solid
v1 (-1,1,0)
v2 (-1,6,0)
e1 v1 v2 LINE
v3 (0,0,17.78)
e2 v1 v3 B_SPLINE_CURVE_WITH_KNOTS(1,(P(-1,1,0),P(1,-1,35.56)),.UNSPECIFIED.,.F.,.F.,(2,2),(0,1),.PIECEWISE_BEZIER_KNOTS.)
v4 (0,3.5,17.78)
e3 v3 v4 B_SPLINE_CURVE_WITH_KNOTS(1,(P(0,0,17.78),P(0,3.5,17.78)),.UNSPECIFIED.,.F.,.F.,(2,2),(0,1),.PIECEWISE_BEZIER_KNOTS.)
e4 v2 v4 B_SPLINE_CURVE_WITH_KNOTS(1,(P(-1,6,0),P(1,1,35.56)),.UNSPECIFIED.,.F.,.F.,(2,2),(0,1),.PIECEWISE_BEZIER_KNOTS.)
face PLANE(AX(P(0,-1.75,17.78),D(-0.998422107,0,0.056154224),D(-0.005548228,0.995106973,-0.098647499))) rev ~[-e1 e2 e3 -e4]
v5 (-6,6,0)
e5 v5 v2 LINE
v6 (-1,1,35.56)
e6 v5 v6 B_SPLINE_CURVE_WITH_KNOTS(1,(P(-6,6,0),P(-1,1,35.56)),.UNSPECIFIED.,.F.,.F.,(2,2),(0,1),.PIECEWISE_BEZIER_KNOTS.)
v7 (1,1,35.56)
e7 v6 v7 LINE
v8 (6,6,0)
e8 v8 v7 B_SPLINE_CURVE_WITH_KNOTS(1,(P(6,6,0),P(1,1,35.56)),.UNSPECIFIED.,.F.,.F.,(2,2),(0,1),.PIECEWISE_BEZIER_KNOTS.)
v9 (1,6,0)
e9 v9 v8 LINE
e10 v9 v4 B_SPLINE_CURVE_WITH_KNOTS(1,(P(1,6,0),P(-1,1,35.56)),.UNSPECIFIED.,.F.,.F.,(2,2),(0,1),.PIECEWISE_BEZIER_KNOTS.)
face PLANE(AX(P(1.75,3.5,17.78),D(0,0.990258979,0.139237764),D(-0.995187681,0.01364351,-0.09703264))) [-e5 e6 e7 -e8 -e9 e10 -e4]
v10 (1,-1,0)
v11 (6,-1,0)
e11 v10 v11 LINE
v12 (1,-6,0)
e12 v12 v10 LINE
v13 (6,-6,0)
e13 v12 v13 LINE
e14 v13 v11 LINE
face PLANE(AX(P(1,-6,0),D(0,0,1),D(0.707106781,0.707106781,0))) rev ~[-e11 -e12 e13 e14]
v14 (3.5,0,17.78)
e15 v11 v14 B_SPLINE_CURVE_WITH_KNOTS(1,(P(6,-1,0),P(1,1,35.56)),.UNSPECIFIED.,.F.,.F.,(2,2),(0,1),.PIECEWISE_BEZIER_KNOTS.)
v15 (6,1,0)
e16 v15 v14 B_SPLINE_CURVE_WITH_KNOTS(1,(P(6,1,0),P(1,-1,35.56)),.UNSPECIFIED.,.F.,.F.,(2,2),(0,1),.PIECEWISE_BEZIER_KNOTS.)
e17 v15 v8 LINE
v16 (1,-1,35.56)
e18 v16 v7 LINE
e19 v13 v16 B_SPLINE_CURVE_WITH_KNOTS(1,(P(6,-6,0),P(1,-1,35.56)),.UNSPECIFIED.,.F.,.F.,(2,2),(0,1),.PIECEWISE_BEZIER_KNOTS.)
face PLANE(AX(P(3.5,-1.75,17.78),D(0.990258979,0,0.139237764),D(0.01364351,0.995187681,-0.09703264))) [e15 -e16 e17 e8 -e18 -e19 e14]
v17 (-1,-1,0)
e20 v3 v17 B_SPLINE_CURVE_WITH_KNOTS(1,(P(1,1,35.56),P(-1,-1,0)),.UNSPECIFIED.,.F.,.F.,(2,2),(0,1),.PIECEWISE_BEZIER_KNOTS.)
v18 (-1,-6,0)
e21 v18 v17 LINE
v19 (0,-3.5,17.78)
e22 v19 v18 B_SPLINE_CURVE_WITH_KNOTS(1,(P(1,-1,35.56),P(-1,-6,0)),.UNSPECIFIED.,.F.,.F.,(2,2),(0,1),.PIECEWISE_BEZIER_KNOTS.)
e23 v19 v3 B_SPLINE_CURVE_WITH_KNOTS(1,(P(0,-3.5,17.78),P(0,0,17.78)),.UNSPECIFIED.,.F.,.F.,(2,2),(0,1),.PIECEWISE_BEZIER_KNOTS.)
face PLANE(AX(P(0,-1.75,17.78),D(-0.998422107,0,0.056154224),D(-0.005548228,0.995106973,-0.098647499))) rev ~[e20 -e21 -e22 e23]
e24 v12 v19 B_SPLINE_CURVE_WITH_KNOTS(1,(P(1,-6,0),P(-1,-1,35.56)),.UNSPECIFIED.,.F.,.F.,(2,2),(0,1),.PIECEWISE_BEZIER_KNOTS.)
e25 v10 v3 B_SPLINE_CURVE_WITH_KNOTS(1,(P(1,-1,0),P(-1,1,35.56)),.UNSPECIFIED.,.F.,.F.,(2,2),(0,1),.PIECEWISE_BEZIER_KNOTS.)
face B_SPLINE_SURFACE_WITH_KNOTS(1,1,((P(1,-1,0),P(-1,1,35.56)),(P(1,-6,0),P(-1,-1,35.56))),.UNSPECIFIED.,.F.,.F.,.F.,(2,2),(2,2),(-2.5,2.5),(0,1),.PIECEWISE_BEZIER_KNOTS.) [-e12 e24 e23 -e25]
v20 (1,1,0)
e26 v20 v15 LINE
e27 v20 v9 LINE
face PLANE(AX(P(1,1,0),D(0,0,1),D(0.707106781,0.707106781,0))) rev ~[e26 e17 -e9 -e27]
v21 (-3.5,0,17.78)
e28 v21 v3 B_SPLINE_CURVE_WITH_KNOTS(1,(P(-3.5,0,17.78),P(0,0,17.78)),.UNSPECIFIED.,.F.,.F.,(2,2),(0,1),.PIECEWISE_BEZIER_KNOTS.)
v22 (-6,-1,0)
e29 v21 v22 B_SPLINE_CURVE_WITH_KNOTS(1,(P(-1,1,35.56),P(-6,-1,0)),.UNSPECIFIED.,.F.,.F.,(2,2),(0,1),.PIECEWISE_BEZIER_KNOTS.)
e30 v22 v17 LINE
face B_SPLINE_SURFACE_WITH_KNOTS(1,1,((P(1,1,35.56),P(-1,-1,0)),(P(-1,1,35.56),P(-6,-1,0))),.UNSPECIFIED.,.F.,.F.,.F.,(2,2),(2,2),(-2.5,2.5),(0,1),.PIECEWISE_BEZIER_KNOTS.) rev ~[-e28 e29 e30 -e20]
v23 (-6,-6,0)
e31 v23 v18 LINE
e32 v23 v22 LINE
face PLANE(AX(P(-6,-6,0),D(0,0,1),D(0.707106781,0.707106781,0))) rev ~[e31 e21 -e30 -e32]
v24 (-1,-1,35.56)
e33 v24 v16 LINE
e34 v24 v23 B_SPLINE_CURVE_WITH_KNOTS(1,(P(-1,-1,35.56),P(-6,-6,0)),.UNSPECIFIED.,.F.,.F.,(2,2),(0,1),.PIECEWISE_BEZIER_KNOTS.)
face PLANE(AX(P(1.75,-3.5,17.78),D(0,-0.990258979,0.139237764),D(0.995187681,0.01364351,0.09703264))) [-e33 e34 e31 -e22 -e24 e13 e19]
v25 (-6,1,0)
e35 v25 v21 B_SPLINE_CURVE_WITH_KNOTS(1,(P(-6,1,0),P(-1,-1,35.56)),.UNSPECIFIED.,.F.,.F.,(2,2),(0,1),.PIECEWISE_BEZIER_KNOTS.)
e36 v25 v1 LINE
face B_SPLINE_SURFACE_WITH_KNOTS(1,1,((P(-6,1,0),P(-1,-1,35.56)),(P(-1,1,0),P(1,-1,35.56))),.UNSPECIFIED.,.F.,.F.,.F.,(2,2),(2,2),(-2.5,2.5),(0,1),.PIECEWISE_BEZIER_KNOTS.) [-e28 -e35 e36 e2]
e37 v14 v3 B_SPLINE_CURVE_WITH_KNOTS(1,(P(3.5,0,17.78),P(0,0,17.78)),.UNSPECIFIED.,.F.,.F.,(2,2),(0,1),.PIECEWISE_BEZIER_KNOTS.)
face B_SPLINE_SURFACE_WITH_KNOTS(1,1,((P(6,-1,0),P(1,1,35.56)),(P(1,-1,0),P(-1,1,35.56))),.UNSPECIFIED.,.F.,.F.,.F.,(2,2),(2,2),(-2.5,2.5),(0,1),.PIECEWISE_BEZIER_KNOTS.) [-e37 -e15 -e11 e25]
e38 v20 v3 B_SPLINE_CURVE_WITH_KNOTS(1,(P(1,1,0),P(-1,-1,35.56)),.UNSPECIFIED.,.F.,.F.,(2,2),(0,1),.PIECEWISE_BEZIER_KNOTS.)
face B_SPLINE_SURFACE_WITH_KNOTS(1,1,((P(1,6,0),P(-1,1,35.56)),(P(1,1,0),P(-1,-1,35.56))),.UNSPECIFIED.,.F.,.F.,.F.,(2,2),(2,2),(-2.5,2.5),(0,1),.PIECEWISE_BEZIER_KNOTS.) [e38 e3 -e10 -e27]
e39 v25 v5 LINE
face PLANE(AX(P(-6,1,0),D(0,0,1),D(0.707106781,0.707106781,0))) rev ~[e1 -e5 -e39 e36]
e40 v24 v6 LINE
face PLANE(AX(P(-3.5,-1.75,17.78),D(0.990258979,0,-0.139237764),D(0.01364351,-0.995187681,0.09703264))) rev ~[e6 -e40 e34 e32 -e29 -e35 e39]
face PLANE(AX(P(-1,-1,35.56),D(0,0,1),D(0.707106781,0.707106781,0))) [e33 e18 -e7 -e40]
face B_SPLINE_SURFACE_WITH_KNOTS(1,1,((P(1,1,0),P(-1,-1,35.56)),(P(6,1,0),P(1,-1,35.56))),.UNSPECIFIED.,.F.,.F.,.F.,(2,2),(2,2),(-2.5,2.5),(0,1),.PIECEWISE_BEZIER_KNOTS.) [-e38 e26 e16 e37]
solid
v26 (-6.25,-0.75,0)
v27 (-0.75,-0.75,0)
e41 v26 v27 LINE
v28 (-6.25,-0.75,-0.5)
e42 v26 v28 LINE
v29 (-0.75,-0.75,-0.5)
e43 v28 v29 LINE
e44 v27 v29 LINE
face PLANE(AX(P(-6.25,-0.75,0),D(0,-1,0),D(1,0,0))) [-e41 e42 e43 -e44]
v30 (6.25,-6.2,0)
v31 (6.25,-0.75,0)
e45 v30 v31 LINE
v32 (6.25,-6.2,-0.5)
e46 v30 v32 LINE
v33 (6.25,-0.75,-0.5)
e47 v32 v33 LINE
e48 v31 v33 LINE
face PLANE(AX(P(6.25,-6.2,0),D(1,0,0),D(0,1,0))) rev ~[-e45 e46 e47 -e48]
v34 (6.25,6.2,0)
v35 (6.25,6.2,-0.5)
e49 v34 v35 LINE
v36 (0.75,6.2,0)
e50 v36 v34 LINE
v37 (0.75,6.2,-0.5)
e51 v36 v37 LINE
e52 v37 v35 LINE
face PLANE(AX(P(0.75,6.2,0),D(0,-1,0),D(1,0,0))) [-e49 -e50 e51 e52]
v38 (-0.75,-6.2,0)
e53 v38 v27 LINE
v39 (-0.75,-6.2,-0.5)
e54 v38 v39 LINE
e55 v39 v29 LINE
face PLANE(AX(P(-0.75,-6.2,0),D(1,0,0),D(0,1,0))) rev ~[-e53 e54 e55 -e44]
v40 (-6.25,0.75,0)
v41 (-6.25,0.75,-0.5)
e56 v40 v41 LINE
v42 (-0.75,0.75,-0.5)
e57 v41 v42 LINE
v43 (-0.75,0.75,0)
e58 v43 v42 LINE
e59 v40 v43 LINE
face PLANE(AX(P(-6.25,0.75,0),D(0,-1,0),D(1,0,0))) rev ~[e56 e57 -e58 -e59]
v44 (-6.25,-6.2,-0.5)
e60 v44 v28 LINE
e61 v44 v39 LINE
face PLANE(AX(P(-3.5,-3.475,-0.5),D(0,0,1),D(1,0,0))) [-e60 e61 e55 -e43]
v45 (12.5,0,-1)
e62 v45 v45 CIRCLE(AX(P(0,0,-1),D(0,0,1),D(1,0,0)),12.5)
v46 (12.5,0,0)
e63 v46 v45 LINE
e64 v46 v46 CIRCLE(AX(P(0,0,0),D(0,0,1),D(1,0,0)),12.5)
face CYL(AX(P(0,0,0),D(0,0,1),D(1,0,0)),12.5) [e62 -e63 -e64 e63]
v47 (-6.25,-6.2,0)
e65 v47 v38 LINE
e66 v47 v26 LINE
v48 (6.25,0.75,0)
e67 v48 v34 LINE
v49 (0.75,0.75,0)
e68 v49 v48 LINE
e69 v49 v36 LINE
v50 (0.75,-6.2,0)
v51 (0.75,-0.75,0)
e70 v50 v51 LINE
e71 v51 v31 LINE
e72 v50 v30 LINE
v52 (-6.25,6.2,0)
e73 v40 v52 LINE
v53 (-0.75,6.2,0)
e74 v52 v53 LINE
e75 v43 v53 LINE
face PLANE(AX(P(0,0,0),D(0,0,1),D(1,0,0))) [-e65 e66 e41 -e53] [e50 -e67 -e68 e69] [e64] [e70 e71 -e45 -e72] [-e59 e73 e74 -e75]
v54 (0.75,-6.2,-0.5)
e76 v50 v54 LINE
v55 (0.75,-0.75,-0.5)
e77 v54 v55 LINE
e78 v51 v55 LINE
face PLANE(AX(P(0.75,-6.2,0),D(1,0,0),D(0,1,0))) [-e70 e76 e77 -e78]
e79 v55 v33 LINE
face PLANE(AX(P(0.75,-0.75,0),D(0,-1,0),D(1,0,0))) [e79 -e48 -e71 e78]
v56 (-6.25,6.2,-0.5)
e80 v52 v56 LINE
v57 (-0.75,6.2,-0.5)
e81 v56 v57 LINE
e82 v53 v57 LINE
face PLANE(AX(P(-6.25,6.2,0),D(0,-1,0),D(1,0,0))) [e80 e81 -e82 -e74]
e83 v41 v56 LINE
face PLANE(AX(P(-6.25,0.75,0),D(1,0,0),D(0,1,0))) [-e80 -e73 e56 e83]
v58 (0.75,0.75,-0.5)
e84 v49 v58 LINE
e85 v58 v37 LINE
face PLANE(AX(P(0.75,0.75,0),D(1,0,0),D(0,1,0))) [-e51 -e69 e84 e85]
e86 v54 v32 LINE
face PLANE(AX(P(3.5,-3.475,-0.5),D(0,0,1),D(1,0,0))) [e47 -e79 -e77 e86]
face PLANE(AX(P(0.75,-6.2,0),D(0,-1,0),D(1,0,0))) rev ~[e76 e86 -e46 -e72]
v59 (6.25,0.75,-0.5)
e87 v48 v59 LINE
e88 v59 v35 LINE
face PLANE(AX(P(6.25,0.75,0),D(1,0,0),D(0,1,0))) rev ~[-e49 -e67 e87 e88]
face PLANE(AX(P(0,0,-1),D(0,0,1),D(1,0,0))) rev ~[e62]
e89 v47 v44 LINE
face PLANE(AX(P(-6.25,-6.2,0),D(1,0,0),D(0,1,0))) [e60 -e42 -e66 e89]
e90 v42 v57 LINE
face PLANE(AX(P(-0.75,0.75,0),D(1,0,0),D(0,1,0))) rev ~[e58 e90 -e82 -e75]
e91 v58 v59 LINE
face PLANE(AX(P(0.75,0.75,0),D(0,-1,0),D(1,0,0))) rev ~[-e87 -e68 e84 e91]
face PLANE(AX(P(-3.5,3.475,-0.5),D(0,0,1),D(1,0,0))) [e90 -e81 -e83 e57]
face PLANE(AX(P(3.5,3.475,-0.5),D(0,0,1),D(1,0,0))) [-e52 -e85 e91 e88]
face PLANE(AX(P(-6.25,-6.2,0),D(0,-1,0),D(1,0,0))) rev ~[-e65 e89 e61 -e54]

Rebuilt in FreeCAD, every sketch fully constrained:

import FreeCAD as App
import Part
import Sketcher
from FreeCAD import Vector

doc = App.newDocument("Part")
body = doc.addObject("PartDesign::Body", "Body")

# Sketch on XY plane
sketch1 = doc.addObject("Sketcher::SketchObject", "Sketch")
body.addObject(sketch1)
sketch1.AttachmentSupport = (doc.XY_Plane, [""])
sketch1.MapMode = "FlatFace"
sketch1.addGeometry([
    Part.LineSegment(Vector(-6, 6, 0), Vector(-6, 1, 0)),
    Part.LineSegment(Vector(-6, 1, 0), Vector(-1, 1, 0)),
    Part.LineSegment(Vector(-1, 1, 0), Vector(-1, 6, 0)),
    Part.LineSegment(Vector(-1, 6, 0), Vector(-6, 6, 0)),
], False)
sketch1.addConstraint([
    Sketcher.Constraint("Coincident", 0, 2, 1, 1),
    Sketcher.Constraint("Coincident", 1, 2, 2, 1),
    Sketcher.Constraint("Coincident", 2, 2, 3, 1),
    Sketcher.Constraint("Coincident", 3, 2, 0, 1),
    Sketcher.Constraint("Vertical", 0),
    Sketcher.Constraint("Horizontal", 1),
    Sketcher.Constraint("Vertical", 2),
    Sketcher.Constraint("Horizontal", 3),
    Sketcher.Constraint("Equal", 3, 0),
    Sketcher.Constraint("DistanceX", 1, 1, 1, 2, 5.0),
    Sketcher.Constraint("DistanceX", 0, 2, -1, 1, 6.0),
    Sketcher.Constraint("DistanceY", -1, 1, 0, 2, 1.0),
])

# Sketch on XY plane
sketch2 = doc.addObject("Sketcher::SketchObject", "Sketch001")
body.addObject(sketch2)
sketch2.AttachmentSupport = (doc.XY_Plane, [""])
sketch2.MapMode = "FlatFace"
sketch2.AttachmentOffset = App.Placement(Vector(0, 0, 35.56), App.Rotation())
sketch2.addGeometry([
    Part.LineSegment(Vector(-1, 1, 0), Vector(-1, -1, 0)),
    Part.LineSegment(Vector(-1, -1, 0), Vector(1, -1, 0)),
    Part.LineSegment(Vector(1, -1, 0), Vector(1, 1, 0)),
    Part.LineSegment(Vector(1, 1, 0), Vector(-1, 1, 0)),
], False)
sketch2.addConstraint([
    Sketcher.Constraint("Coincident", 0, 2, 1, 1),
    Sketcher.Constraint("Coincident", 1, 2, 2, 1),
    Sketcher.Constraint("Coincident", 2, 2, 3, 1),
    Sketcher.Constraint("Coincident", 3, 2, 0, 1),
    Sketcher.Constraint("Vertical", 0),
    Sketcher.Constraint("Horizontal", 1),
    Sketcher.Constraint("Vertical", 2),
    Sketcher.Constraint("Horizontal", 3),
    Sketcher.Constraint("Symmetric", 0, 2, 2, 2, -1, 1),
    Sketcher.Constraint("Equal", 3, 0),
    Sketcher.Constraint("DistanceX", 1, 1, 1, 2, 2.0),
])

additiveloft = doc.addObject("PartDesign::AdditiveLoft", "AdditiveLoft")
body.addObject(additiveloft)
additiveloft.Profile = sketch1
additiveloft.Sections = [sketch2]

# Sketch on XY plane
sketch3 = doc.addObject("Sketcher::SketchObject", "Sketch002")
body.addObject(sketch3)
sketch3.AttachmentSupport = (doc.XY_Plane, [""])
sketch3.MapMode = "FlatFace"
sketch3.AttachmentOffset = App.Placement(Vector(0, 0, 35.56), App.Rotation())
sketch3.addGeometry([
    Part.LineSegment(Vector(-1, 1, 0), Vector(-1, -1, 0)),
    Part.LineSegment(Vector(-1, -1, 0), Vector(1, -1, 0)),
    Part.LineSegment(Vector(1, -1, 0), Vector(1, 1, 0)),
    Part.LineSegment(Vector(1, 1, 0), Vector(-1, 1, 0)),
], False)
sketch3.addConstraint([
    Sketcher.Constraint("Coincident", 0, 2, 1, 1),
    Sketcher.Constraint("Coincident", 1, 2, 2, 1),
    Sketcher.Constraint("Coincident", 2, 2, 3, 1),
    Sketcher.Constraint("Coincident", 3, 2, 0, 1),
    Sketcher.Constraint("Vertical", 0),
    Sketcher.Constraint("Horizontal", 1),
    Sketcher.Constraint("Vertical", 2),
    Sketcher.Constraint("Horizontal", 3),
    Sketcher.Constraint("Symmetric", 0, 2, 2, 2, -1, 1),
    Sketcher.Constraint("Equal", 3, 0),
    Sketcher.Constraint("DistanceX", 1, 1, 1, 2, 2.0),
])

# Sketch on XY plane
sketch4 = doc.addObject("Sketcher::SketchObject", "Sketch003")
body.addObject(sketch4)
sketch4.AttachmentSupport = (doc.XY_Plane, [""])
sketch4.MapMode = "FlatFace"
sketch4.addGeometry([
    Part.LineSegment(Vector(-6, -1, 0), Vector(-6, -6, 0)),
    Part.LineSegment(Vector(-6, -6, 0), Vector(-1, -6, 0)),
    Part.LineSegment(Vector(-1, -6, 0), Vector(-1, -1, 0)),
    Part.LineSegment(Vector(-1, -1, 0), Vector(-6, -1, 0)),
], False)
sketch4.addConstraint([
    Sketcher.Constraint("Coincident", 0, 2, 1, 1),
    Sketcher.Constraint("Coincident", 1, 2, 2, 1),
    Sketcher.Constraint("Coincident", 2, 2, 3, 1),
    Sketcher.Constraint("Coincident", 3, 2, 0, 1),
    Sketcher.Constraint("Vertical", 0),
    Sketcher.Constraint("Horizontal", 1),
    Sketcher.Constraint("Vertical", 2),
    Sketcher.Constraint("Horizontal", 3),
    Sketcher.Constraint("Equal", 3, 0),
    Sketcher.Constraint("DistanceX", 1, 1, 1, 2, 5.0),
    Sketcher.Constraint("DistanceX", 0, 2, -1, 1, 6.0),
    Sketcher.Constraint("DistanceY", 0, 2, -1, 1, 6.0),
])

additiveloft2 = doc.addObject("PartDesign::AdditiveLoft", "AdditiveLoft001")
body.addObject(additiveloft2)
additiveloft2.Profile = sketch3
additiveloft2.Sections = [sketch4]

# Sketch on XY plane
sketch5 = doc.addObject("Sketcher::SketchObject", "Sketch004")
body.addObject(sketch5)
sketch5.AttachmentSupport = (doc.XY_Plane, [""])
sketch5.MapMode = "FlatFace"
sketch5.addGeometry([
    Part.LineSegment(Vector(1, 6, 0), Vector(1, 1, 0)),
    Part.LineSegment(Vector(1, 1, 0), Vector(6, 1, 0)),
    Part.LineSegment(Vector(6, 1, 0), Vector(6, 6, 0)),
    Part.LineSegment(Vector(6, 6, 0), Vector(1, 6, 0)),
], False)
sketch5.addConstraint([
    Sketcher.Constraint("Coincident", 0, 2, 1, 1),
    Sketcher.Constraint("Coincident", 1, 2, 2, 1),
    Sketcher.Constraint("Coincident", 2, 2, 3, 1),
    Sketcher.Constraint("Coincident", 3, 2, 0, 1),
    Sketcher.Constraint("Vertical", 0),
    Sketcher.Constraint("Horizontal", 1),
    Sketcher.Constraint("Vertical", 2),
    Sketcher.Constraint("Horizontal", 3),
    Sketcher.Constraint("Equal", 3, 0),
    Sketcher.Constraint("DistanceX", 1, 1, 1, 2, 5.0),
    Sketcher.Constraint("DistanceX", -1, 1, 0, 2, 1.0),
    Sketcher.Constraint("DistanceY", -1, 1, 0, 2, 1.0),
])

# Sketch on XY plane
sketch6 = doc.addObject("Sketcher::SketchObject", "Sketch005")
body.addObject(sketch6)
sketch6.AttachmentSupport = (doc.XY_Plane, [""])
sketch6.MapMode = "FlatFace"
sketch6.AttachmentOffset = App.Placement(Vector(0, 0, 35.56), App.Rotation())
sketch6.addGeometry([
    Part.LineSegment(Vector(-1, 1, 0), Vector(-1, -1, 0)),
    Part.LineSegment(Vector(-1, -1, 0), Vector(1, -1, 0)),
    Part.LineSegment(Vector(1, -1, 0), Vector(1, 1, 0)),
    Part.LineSegment(Vector(1, 1, 0), Vector(-1, 1, 0)),
], False)
sketch6.addConstraint([
    Sketcher.Constraint("Coincident", 0, 2, 1, 1),
    Sketcher.Constraint("Coincident", 1, 2, 2, 1),
    Sketcher.Constraint("Coincident", 2, 2, 3, 1),
    Sketcher.Constraint("Coincident", 3, 2, 0, 1),
    Sketcher.Constraint("Vertical", 0),
    Sketcher.Constraint("Horizontal", 1),
    Sketcher.Constraint("Vertical", 2),
    Sketcher.Constraint("Horizontal", 3),
    Sketcher.Constraint("Symmetric", 0, 2, 2, 2, -1, 1),
    Sketcher.Constraint("Equal", 3, 0),
    Sketcher.Constraint("DistanceX", 1, 1, 1, 2, 2.0),
])

additiveloft3 = doc.addObject("PartDesign::AdditiveLoft", "AdditiveLoft002")
body.addObject(additiveloft3)
additiveloft3.Profile = sketch5
additiveloft3.Sections = [sketch6]

# Sketch on XY plane
sketch7 = doc.addObject("Sketcher::SketchObject", "Sketch006")
body.addObject(sketch7)
sketch7.AttachmentSupport = (doc.XY_Plane, [""])
sketch7.MapMode = "FlatFace"
sketch7.addGeometry([
    Part.LineSegment(Vector(1, -1, 0), Vector(1, -6, 0)),
    Part.LineSegment(Vector(1, -6, 0), Vector(6, -6, 0)),
    Part.LineSegment(Vector(6, -6, 0), Vector(6, -1, 0)),
    Part.LineSegment(Vector(6, -1, 0), Vector(1, -1, 0)),
], False)
sketch7.addConstraint([
    Sketcher.Constraint("Coincident", 0, 2, 1, 1),
    Sketcher.Constraint("Coincident", 1, 2, 2, 1),
    Sketcher.Constraint("Coincident", 2, 2, 3, 1),
    Sketcher.Constraint("Coincident", 3, 2, 0, 1),
    Sketcher.Constraint("Vertical", 0),
    Sketcher.Constraint("Horizontal", 1),
    Sketcher.Constraint("Vertical", 2),
    Sketcher.Constraint("Horizontal", 3),
    Sketcher.Constraint("Equal", 3, 0),
    Sketcher.Constraint("DistanceX", 1, 1, 1, 2, 5.0),
    Sketcher.Constraint("DistanceX", -1, 1, 0, 2, 1.0),
    Sketcher.Constraint("DistanceY", 0, 2, -1, 1, 6.0),
])

# Sketch on XY plane
sketch8 = doc.addObject("Sketcher::SketchObject", "Sketch007")
body.addObject(sketch8)
sketch8.AttachmentSupport = (doc.XY_Plane, [""])
sketch8.MapMode = "FlatFace"
sketch8.AttachmentOffset = App.Placement(Vector(0, 0, 35.56), App.Rotation())
sketch8.addGeometry([
    Part.LineSegment(Vector(-1, 1, 0), Vector(-1, -1, 0)),
    Part.LineSegment(Vector(-1, -1, 0), Vector(1, -1, 0)),
    Part.LineSegment(Vector(1, -1, 0), Vector(1, 1, 0)),
    Part.LineSegment(Vector(1, 1, 0), Vector(-1, 1, 0)),
], False)
sketch8.addConstraint([
    Sketcher.Constraint("Coincident", 0, 2, 1, 1),
    Sketcher.Constraint("Coincident", 1, 2, 2, 1),
    Sketcher.Constraint("Coincident", 2, 2, 3, 1),
    Sketcher.Constraint("Coincident", 3, 2, 0, 1),
    Sketcher.Constraint("Vertical", 0),
    Sketcher.Constraint("Horizontal", 1),
    Sketcher.Constraint("Vertical", 2),
    Sketcher.Constraint("Horizontal", 3),
    Sketcher.Constraint("Symmetric", 0, 2, 2, 2, -1, 1),
    Sketcher.Constraint("Equal", 3, 0),
    Sketcher.Constraint("DistanceX", 1, 1, 1, 2, 2.0),
])

additiveloft4 = doc.addObject("PartDesign::AdditiveLoft", "AdditiveLoft003")
body.addObject(additiveloft4)
additiveloft4.Profile = sketch7
additiveloft4.Sections = [sketch8]
body2 = doc.addObject("PartDesign::Body", "Body001")

# Sketch on XY plane
sketch9 = doc.addObject("Sketcher::SketchObject", "Sketch008")
body2.addObject(sketch9)
sketch9.AttachmentSupport = (doc.getObject("XY_Plane001"), [""])
sketch9.MapMode = "FlatFace"
sketch9.addGeometry(Part.Circle(Vector(0, 0, 0), Vector(0, 0, 1), 12), False)
sketch9.addConstraint([
    Sketcher.Constraint("Coincident", 0, 3, -1, 1),
    Sketcher.Constraint("Diameter", 0, 25.0),
])
pad1 = doc.addObject("PartDesign::Pad", "Pad")
body2.addObject(pad1)
pad1.Profile = sketch9
pad1.Length = 1
pad1.Reversed = True

# Sketch on XY plane
sketch10 = doc.addObject("Sketcher::SketchObject", "Sketch009")
body2.addObject(sketch10)
sketch10.AttachmentSupport = (doc.getObject("XY_Plane001"), [""])
sketch10.MapMode = "FlatFace"
sketch10.addGeometry([
    Part.LineSegment(Vector(-6, 6, 0), Vector(-6, 1, 0)),  # 0
    Part.LineSegment(Vector(-6, 1, 0), Vector(-1, 1, 0)),  # 1
    Part.LineSegment(Vector(-1, 1, 0), Vector(-1, 6, 0)),  # 2
    Part.LineSegment(Vector(-1, 6, 0), Vector(-6, 6, 0)),  # 3
    Part.LineSegment(Vector(1, 6, 0), Vector(1, 1, 0)),  # 4
    Part.LineSegment(Vector(1, 1, 0), Vector(6, 1, 0)),  # 5
    Part.LineSegment(Vector(6, 1, 0), Vector(6, 6, 0)),  # 6
    Part.LineSegment(Vector(6, 6, 0), Vector(1, 6, 0)),  # 7
    Part.LineSegment(Vector(-6, -1, 0), Vector(-6, -6, 0)),  # 8
    Part.LineSegment(Vector(-6, -6, 0), Vector(-1, -6, 0)),  # 9
    Part.LineSegment(Vector(-1, -6, 0), Vector(-1, -1, 0)),  # 10
    Part.LineSegment(Vector(-1, -1, 0), Vector(-6, -1, 0)),  # 11
    Part.LineSegment(Vector(1, -1, 0), Vector(1, -6, 0)),  # 12
    Part.LineSegment(Vector(1, -6, 0), Vector(6, -6, 0)),  # 13
    Part.LineSegment(Vector(6, -6, 0), Vector(6, -1, 0)),  # 14
    Part.LineSegment(Vector(6, -1, 0), Vector(1, -1, 0)),  # 15
], False)
sketch10.addConstraint([
    Sketcher.Constraint("Coincident", 0, 2, 1, 1),
    Sketcher.Constraint("Coincident", 1, 2, 2, 1),
    Sketcher.Constraint("Coincident", 2, 2, 3, 1),
    Sketcher.Constraint("Coincident", 3, 2, 0, 1),
    Sketcher.Constraint("Coincident", 4, 2, 5, 1),
    Sketcher.Constraint("Coincident", 5, 2, 6, 1),
    Sketcher.Constraint("Coincident", 6, 2, 7, 1),
    Sketcher.Constraint("Coincident", 7, 2, 4, 1),
    Sketcher.Constraint("Coincident", 8, 2, 9, 1),
    Sketcher.Constraint("Coincident", 9, 2, 10, 1),
    Sketcher.Constraint("Coincident", 10, 2, 11, 1),
    Sketcher.Constraint("Coincident", 11, 2, 8, 1),
    Sketcher.Constraint("Coincident", 12, 2, 13, 1),
    Sketcher.Constraint("Coincident", 13, 2, 14, 1),
    Sketcher.Constraint("Coincident", 14, 2, 15, 1),
    Sketcher.Constraint("Coincident", 15, 2, 12, 1),
    Sketcher.Constraint("Vertical", 0),
    Sketcher.Constraint("Horizontal", 1),
    Sketcher.Constraint("Vertical", 2),
    Sketcher.Constraint("Horizontal", 3),
    Sketcher.Constraint("Vertical", 4),
    Sketcher.Constraint("Horizontal", 5),
    Sketcher.Constraint("Vertical", 6),
    Sketcher.Constraint("Horizontal", 7),
    Sketcher.Constraint("Vertical", 8),
    Sketcher.Constraint("Horizontal", 9),
    Sketcher.Constraint("Vertical", 10),
    Sketcher.Constraint("Horizontal", 11),
    Sketcher.Constraint("Vertical", 12),
    Sketcher.Constraint("Horizontal", 13),
    Sketcher.Constraint("Vertical", 14),
    Sketcher.Constraint("Horizontal", 15),
    Sketcher.Constraint("Symmetric", 6, 2, 8, 2, -1, 1),
    Sketcher.Constraint("Symmetric", 4, 2, 10, 2, -1, 1),
    Sketcher.Constraint("Symmetric", 2, 2, 12, 2, -1, 1),
    Sketcher.Constraint("Symmetric", 0, 2, 14, 2, -1, 1),
    Sketcher.Constraint("Symmetric", 1, 2, 4, 2, -2),
    Sketcher.Constraint("Symmetric", 3, 2, 6, 2, -2),
    Sketcher.Constraint("DistanceX", 1, 1, 1, 2, 5.5),
    Sketcher.Constraint("DistanceX", 0, 2, 4, 2, 7.0),
    Sketcher.Constraint("DistanceY", 0, 2, 0, 1, 5.45),
    Sketcher.Constraint("DistanceY", -1, 1, 2, 2, 6.2),
])
pocket1 = doc.addObject("PartDesign::Pocket", "Pocket")
body2.addObject(pocket1)
pocket1.Profile = sketch10
pocket1.Length = 0.5

doc.recompute()
